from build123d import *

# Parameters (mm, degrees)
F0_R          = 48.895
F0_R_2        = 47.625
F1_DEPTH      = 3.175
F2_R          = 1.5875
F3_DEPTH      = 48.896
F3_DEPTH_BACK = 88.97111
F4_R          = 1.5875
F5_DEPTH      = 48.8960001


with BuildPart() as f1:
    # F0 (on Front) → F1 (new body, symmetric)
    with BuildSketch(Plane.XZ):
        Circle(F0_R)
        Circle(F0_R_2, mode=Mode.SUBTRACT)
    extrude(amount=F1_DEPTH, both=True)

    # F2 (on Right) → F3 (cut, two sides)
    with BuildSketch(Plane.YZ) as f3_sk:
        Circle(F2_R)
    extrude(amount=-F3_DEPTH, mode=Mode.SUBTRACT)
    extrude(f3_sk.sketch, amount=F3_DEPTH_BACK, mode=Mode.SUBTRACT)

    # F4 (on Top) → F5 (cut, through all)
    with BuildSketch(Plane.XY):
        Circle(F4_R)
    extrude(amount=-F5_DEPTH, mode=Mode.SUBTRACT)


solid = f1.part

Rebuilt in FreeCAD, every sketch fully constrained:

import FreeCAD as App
import Part
import Sketcher

V = App.Vector
Q = App.Units.Quantity

doc = App.newDocument("Part")
params = doc.addObject("Spreadsheet::Sheet", "Params")
for row, (alias, value) in enumerate([
    ("sketch1_diameter", "3.85 in"),
    ("sketch1_diameter2", "3.75 in"),
    ("pad1_length", "0.25 in"),
    ("sketch2_diameter", "0.125 in"),
    ("sketch3_diameter", "0.125 in"),
], start=1):
    params.set(f"A{row}", alias)
    params.set(f"B{row}", "=" + value)
    params.setAlias(f"B{row}", alias)

body = doc.addObject("PartDesign::Body", "Body")

sketch1 = body.newObject("Sketcher::SketchObject", "Sketch")
sketch1.AttachmentSupport = (doc.getObject("XZ_Plane"), [""])
sketch1.MapMode = "FlatFace"
sketch1.addGeometry([
    Part.Circle(V(0, 0, 0), V(0, 0, 1), 49),
    Part.Circle(V(0, 0, 0), V(0, 0, 1), 48),
], False)
sketch1.addConstraint([
    Sketcher.Constraint("Coincident", 0, 3, -1, 1),
    Sketcher.Constraint("Coincident", 1, 3, -1, 1),
    Sketcher.Constraint("Diameter", 0, Q("3.85 in")),
    Sketcher.Constraint("Diameter", 1, Q("3.75 in")),
])
sketch1.setExpression("Constraints[2]", "Params.sketch1_diameter")
sketch1.setExpression("Constraints[3]", "Params.sketch1_diameter2")
pad1 = body.newObject("PartDesign::Pad", "Pad")
pad1.Profile = sketch1
pad1.setExpression("Length", "Params.pad1_length")
pad1.Midplane = True

sketch2 = body.newObject("Sketcher::SketchObject", "Sketch001")
sketch2.AttachmentSupport = (doc.getObject("YZ_Plane"), [""])
sketch2.MapMode = "FlatFace"
sketch2.addGeometry(Part.Circle(V(0, 0, 0), V(0, 0, 1), 1.6), False)
sketch2.addConstraint([
    Sketcher.Constraint("Coincident", 0, 3, -1, 1),
    Sketcher.Constraint("Diameter", 0, Q("0.125 in")),
])
sketch2.setExpression("Constraints[1]", "Params.sketch2_diameter")
pocket1 = body.newObject("PartDesign::Pocket", "Pocket")
pocket1.Profile = sketch2
pocket1.Type = "ThroughAll"
pocket1.Midplane = True

sketch3 = body.newObject("Sketcher::SketchObject", "Sketch002")
sketch3.AttachmentSupport = (doc.getObject("XY_Plane"), [""])
sketch3.MapMode = "FlatFace"
sketch3.addGeometry(Part.Circle(V(0, 0, 0), V(0, 0, 1), 1.6), False)
sketch3.addConstraint([
    Sketcher.Constraint("Coincident", 0, 3, -1, 1),
    Sketcher.Constraint("Diameter", 0, Q("0.125 in")),
])
sketch3.setExpression("Constraints[1]", "Params.sketch3_diameter")
pocket2 = body.newObject("PartDesign::Pocket", "Pocket001")
pocket2.Profile = sketch3
pocket2.Type = "ThroughAll"

doc.recompute()
